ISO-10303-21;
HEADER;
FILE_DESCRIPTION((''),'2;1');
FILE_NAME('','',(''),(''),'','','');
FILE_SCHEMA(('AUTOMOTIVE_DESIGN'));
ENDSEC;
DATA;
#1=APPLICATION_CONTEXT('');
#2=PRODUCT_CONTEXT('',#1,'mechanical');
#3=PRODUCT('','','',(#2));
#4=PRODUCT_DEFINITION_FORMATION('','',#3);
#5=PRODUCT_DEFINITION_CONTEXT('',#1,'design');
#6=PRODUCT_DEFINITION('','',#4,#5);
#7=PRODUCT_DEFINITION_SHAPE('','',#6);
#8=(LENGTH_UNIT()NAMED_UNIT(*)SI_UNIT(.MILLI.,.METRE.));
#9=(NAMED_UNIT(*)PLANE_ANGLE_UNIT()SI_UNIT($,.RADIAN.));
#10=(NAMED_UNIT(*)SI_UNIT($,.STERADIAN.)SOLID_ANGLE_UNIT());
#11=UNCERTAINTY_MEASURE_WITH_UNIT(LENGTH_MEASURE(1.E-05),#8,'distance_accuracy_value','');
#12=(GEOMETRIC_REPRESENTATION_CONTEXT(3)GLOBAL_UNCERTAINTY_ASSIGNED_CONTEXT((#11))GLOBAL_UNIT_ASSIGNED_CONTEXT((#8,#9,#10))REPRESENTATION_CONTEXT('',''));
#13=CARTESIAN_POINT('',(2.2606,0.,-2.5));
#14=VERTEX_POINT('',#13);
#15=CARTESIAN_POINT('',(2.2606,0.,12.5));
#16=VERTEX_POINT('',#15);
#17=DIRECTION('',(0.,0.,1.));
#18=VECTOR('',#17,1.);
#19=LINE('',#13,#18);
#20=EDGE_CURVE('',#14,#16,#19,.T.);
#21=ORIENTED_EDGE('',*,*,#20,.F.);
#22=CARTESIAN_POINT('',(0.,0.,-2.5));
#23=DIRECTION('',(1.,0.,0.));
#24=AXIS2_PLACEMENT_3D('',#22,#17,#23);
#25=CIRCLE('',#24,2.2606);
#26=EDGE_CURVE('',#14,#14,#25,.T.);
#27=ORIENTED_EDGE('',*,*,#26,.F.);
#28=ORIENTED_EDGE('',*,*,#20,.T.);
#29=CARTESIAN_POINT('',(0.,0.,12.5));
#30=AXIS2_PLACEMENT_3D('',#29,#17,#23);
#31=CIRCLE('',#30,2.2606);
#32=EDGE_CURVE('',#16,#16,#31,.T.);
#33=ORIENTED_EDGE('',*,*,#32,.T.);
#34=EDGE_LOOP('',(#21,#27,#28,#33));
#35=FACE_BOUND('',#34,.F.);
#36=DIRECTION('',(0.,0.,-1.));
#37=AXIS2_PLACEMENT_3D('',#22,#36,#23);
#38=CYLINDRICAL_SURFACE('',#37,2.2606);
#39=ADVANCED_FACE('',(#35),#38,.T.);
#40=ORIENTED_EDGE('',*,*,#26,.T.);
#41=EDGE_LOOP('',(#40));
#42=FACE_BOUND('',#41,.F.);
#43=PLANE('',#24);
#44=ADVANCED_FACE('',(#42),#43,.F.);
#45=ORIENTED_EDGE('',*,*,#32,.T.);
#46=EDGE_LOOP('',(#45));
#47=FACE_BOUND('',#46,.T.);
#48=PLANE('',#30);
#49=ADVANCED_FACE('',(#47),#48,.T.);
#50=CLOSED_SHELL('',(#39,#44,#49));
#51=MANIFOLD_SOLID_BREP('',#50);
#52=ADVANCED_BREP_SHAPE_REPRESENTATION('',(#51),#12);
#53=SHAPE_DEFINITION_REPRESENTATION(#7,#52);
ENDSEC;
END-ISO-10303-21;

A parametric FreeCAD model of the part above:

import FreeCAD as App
import Part
import Sketcher
from FreeCAD import Vector

doc = App.newDocument("Part")
body = doc.addObject("PartDesign::Body", "Body")

sketch1 = body.newObject("Sketcher::SketchObject", "Sketch")
sketch1.AttachmentSupport = (doc.getObject("XY_Plane"), [""])
sketch1.MapMode = "FlatFace"
sketch1.AttachmentOffset = App.Placement(Vector(0, 0, -2.5), App.Rotation())
sketch1.addGeometry(Part.Circle(Vector(0, 0, 0), Vector(0, 0, 1), 2.3), False)
sketch1.addConstraint([
    Sketcher.Constraint("Coincident", 0, 3, -1, 1),
    Sketcher.Constraint("Diameter", 0, 4.5212),
])
pad1 = body.newObject("PartDesign::Pad", "Pad")
pad1.Profile = sketch1
pad1.Length = 15

doc.recompute()
